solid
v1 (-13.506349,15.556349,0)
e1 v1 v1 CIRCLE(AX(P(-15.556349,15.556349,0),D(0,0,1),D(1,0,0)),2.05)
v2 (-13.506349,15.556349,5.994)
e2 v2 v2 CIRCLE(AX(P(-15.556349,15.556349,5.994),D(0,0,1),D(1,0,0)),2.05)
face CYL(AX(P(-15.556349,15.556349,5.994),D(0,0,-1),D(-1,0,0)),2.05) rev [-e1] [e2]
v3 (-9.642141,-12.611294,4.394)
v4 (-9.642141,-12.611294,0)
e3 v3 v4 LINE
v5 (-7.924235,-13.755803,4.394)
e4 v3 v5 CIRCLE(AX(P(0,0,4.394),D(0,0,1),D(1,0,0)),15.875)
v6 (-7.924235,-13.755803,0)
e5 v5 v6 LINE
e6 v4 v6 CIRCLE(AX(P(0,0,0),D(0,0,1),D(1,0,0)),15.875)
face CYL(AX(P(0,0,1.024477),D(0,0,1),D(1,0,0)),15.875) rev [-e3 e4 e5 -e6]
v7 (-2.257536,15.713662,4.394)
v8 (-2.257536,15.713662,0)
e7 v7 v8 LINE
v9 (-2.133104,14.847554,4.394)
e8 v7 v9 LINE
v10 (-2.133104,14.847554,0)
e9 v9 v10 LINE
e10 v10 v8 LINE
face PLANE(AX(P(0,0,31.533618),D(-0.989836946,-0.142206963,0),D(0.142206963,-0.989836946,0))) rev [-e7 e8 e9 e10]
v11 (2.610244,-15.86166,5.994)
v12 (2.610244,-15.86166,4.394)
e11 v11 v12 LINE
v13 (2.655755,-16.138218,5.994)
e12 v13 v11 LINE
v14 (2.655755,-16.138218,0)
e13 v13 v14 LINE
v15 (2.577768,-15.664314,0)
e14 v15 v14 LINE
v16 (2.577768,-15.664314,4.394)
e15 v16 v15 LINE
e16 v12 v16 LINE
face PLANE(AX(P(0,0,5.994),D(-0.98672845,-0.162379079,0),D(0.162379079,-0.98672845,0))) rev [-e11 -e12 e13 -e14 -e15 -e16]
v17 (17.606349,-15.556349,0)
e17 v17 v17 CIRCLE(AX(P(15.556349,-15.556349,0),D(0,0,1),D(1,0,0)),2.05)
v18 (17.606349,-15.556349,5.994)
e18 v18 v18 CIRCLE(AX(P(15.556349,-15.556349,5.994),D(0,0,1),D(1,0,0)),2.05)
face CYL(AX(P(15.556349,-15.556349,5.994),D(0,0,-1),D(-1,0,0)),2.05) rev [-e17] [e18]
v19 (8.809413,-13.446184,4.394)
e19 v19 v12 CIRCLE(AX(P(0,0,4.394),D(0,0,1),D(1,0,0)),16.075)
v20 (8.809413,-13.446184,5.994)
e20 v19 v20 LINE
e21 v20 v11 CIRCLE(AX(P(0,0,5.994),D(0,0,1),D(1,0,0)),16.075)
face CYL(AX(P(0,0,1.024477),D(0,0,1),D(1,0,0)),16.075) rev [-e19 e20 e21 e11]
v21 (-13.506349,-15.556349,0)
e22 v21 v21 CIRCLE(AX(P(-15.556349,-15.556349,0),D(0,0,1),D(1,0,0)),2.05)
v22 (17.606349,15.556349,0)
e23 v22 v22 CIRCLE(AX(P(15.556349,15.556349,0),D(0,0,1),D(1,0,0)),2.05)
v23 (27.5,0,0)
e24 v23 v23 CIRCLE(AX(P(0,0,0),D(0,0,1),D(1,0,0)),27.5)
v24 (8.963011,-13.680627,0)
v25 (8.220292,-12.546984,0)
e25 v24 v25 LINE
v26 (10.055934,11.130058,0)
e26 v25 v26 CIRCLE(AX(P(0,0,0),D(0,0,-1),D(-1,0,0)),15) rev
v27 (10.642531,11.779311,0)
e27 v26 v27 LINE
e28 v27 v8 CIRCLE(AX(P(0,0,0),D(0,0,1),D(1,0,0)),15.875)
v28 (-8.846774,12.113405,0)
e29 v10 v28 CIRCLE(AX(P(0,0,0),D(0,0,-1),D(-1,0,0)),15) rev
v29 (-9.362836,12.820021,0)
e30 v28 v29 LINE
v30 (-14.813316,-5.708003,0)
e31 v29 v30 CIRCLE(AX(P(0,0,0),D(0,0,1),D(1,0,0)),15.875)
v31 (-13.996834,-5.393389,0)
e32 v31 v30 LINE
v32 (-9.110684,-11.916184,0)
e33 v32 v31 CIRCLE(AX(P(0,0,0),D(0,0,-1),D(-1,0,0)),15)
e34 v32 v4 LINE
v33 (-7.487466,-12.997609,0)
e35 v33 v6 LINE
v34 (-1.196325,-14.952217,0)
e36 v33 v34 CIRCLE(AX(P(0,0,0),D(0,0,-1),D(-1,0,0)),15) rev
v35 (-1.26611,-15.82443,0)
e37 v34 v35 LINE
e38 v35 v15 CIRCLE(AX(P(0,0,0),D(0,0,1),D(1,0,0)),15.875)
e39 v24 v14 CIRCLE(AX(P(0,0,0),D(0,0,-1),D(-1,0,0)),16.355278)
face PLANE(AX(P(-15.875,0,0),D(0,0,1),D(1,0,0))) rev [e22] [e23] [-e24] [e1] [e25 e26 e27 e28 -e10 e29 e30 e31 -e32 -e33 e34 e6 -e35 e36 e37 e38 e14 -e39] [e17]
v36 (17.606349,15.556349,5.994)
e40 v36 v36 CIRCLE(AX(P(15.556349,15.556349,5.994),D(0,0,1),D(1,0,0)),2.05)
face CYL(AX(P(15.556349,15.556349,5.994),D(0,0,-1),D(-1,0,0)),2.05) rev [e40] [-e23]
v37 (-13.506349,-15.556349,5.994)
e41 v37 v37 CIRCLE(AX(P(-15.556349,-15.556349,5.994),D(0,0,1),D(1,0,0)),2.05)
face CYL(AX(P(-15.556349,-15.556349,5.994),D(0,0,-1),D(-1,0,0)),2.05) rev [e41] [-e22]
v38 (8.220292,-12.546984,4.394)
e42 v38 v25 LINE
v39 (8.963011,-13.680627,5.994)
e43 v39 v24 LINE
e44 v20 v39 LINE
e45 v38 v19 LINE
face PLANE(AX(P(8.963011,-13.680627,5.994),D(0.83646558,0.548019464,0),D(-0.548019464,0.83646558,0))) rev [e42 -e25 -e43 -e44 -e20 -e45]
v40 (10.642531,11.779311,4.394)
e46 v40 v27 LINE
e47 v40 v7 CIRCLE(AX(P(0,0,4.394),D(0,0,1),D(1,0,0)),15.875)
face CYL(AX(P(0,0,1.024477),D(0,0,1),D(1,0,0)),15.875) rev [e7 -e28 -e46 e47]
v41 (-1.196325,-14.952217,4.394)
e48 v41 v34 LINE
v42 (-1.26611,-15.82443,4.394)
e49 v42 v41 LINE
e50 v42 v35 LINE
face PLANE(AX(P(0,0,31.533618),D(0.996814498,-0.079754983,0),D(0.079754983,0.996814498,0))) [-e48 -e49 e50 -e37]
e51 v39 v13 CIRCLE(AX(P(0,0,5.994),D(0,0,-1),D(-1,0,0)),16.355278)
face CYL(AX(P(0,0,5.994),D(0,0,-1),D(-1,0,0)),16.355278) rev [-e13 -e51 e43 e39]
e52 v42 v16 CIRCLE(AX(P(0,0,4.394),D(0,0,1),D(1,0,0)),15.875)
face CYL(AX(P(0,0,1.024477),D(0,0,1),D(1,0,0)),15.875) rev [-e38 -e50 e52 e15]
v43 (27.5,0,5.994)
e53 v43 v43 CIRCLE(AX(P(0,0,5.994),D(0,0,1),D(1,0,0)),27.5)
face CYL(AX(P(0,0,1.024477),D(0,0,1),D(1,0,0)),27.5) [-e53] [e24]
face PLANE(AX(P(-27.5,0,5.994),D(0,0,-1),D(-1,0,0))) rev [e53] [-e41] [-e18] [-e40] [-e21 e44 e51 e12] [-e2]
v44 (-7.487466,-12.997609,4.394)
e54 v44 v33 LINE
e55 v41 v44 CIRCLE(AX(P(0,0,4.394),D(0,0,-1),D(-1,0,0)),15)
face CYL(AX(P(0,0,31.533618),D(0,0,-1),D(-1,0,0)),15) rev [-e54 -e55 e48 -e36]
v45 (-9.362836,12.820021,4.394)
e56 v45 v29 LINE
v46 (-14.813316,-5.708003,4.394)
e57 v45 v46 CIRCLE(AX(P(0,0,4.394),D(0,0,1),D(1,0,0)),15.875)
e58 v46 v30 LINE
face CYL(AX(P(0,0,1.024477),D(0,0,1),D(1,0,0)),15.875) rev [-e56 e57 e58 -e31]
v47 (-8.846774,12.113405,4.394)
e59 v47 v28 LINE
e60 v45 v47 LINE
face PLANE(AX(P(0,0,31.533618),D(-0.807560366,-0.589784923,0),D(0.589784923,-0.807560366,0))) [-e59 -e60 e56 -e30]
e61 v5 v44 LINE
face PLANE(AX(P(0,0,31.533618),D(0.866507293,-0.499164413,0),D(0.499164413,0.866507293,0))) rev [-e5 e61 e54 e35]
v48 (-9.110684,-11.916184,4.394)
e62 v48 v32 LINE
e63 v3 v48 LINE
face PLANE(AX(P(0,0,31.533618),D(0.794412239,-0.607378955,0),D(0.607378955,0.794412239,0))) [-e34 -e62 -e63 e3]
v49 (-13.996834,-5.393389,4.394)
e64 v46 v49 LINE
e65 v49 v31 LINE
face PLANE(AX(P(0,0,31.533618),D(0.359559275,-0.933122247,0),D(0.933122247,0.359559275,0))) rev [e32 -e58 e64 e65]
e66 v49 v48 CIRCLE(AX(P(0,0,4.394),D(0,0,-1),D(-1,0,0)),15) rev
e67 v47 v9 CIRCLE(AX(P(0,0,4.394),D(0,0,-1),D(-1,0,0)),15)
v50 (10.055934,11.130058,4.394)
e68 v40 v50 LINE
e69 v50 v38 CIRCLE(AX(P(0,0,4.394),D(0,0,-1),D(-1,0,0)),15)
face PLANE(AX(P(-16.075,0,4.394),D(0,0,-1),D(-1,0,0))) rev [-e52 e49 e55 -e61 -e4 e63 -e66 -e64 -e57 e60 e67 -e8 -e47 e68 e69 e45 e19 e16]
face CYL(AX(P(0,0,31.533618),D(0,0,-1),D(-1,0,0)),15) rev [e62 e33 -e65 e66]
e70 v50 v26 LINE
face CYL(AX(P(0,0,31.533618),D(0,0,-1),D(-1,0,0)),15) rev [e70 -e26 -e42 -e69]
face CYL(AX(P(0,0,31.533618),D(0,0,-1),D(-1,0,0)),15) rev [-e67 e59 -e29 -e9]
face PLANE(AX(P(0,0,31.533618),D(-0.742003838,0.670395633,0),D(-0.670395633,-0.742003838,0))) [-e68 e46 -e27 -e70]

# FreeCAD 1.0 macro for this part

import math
import FreeCAD as App
import Part
import Sketcher
Q = App.Units.Quantity

doc = App.newDocument("Part")
params = doc.addObject("Spreadsheet::Sheet", "Params")
for row, (alias, value) in enumerate([
    ("sketch1_width", "0.2 mm"),
    ("sketch1_height", "1.6 mm"),
    ("revolution_angle", "360 deg"),
    ("sketch2_diameter", "4.1 mm"),
    ("sketch3_radius", "15 mm"),
    ("pad1_length", "4.394 mm"),
], start=1):
    params.set(f"A{row}", alias)
    params.set(f"B{row}", "=" + value)
    params.setAlias(f"B{row}", alias)

body = doc.addObject("PartDesign::Body", "Body")

# Sketch on XZ plane
sketch1 = body.newObject("Sketcher::SketchObject", "Sketch")
sketch1.AttachmentSupport = (doc.getObject("XZ_Plane"), [""])
sketch1.MapMode = "FlatFace"
sketch1.addGeometry([
    Part.LineSegment(App.Vector(-15.88, 0, 0), App.Vector(-27.5, 0, 0)),  # 0
    Part.LineSegment(App.Vector(-27.5, 0, 0), App.Vector(-27.5, 5.99, 0)),  # 1
    Part.LineSegment(App.Vector(-27.5, 5.99, 0), App.Vector(-16.07, 5.99, 0)),  # 2
    Part.LineSegment(App.Vector(-16.07, 5.99, 0), App.Vector(-16.07, 4.39, 0)),  # 3
    Part.LineSegment(App.Vector(-16.07, 4.39, 0), App.Vector(-15.88, 4.39, 0)),  # 4
    Part.LineSegment(App.Vector(-15.88, 4.39, 0), App.Vector(-15.88, 0, 0)),  # 5
], False)
sketch1.addConstraint([
    Sketcher.Constraint("Coincident", 0, 2, 1, 1),
    Sketcher.Constraint("Coincident", 1, 2, 2, 1),
    Sketcher.Constraint("Coincident", 2, 2, 3, 1),
    Sketcher.Constraint("Coincident", 3, 2, 4, 1),
    Sketcher.Constraint("Coincident", 4, 2, 5, 1),
    Sketcher.Constraint("Coincident", 5, 2, 0, 1),
    Sketcher.Constraint("Horizontal", 0),
    Sketcher.Constraint("Vertical", 1),
    Sketcher.Constraint("Horizontal", 2),
    Sketcher.Constraint("Vertical", 3),
    Sketcher.Constraint("Horizontal", 4),
    Sketcher.Constraint("Vertical", 5),
    Sketcher.Constraint("PointOnObject", 0, 2, -1),
    Sketcher.Constraint("DistanceX", 4, 1, 4, 2, Q("0.2 mm")),
    Sketcher.Constraint("DistanceY", 3, 2, 3, 1, Q("1.6 mm")),
    Sketcher.Constraint("DistanceX", 0, 2, -1, 1, Q("27.5 mm")),
    Sketcher.Constraint("DistanceX", 0, 2, 0, 1, Q("11.625 mm")),
    Sketcher.Constraint("DistanceY", 1, 1, 1, 2, Q("5.994 mm")),
])
sketch1.setExpression("Constraints[13]", "Params.sketch1_width")
sketch1.setExpression("Constraints[14]", "Params.sketch1_height")
revolution = body.newObject("PartDesign::Revolution", "Revolution")
revolution.Profile = sketch1
revolution.ReferenceAxis = (sketch1, ["V_Axis"])
revolution.setExpression("Angle", "Params.revolution_angle")

# Sketch on XY plane
sketch2 = body.newObject("Sketcher::SketchObject", "Sketch001")
sketch2.AttachmentSupport = (doc.getObject("XY_Plane"), [""])
sketch2.MapMode = "FlatFace"
sketch2.addGeometry([
    Part.Circle(App.Vector(-15.6, 15.6, 0), App.Vector(0, 0, 1), 2),
    Part.Circle(App.Vector(15.6, 15.6, 0), App.Vector(0, 0, 1), 2),
    Part.Circle(App.Vector(15.6, -15.6, 0), App.Vector(0, 0, 1), 2),
    Part.Circle(App.Vector(-15.6, -15.6, 0), App.Vector(0, 0, 1), 2),
], False)
sketch2.addConstraint([
    Sketcher.Constraint("Equal", 0, 1),
    Sketcher.Constraint("Equal", 1, 2),
    Sketcher.Constraint("Equal", 2, 3),
    Sketcher.Constraint("Symmetric", 0, 3, 2, 3, -1, 1),
    Sketcher.Constraint("Symmetric", 1, 3, 3, 3, -1, 1),
    Sketcher.Constraint("Symmetric", 0, 3, 1, 3, -2),
    Sketcher.Constraint("Diameter", 0, Q("4.1 mm")),
    Sketcher.Constraint("DistanceX", 0, 3, 1, 3, Q("31.112698 mm")),
    Sketcher.Constraint("DistanceY", 2, 3, 1, 3, Q("31.112698 mm")),
])
sketch2.setExpression("Constraints[6]", "Params.sketch2_diameter")
pocket1 = body.newObject("PartDesign::Pocket", "Pocket")
pocket1.Profile = sketch2
pocket1.Type = "ThroughAll"
pocket1.Reversed = True

# Sketch on XY plane
sketch3 = body.newObject("Sketcher::SketchObject", "Sketch002")
sketch3.AttachmentSupport = (doc.getObject("XY_Plane"), [""])
sketch3.MapMode = "FlatFace"
sketch3.addGeometry([
    Part.ArcOfCircle(Part.Circle(App.Vector(0, 0, 0), App.Vector(0, 0, 1), 15.9), math.radians(-61), math.radians(48)),  # 0
    Part.LineSegment(App.Vector(7.6, -13.9, 0), App.Vector(7.2, -13.2, 0)),  # 1
    Part.ArcOfCircle(Part.Circle(App.Vector(0, 0, 0), App.Vector(0, 0, 1), 15), math.radians(-61), math.radians(48)),  # 2
    Part.LineSegment(App.Vector(10.1, 11.1, 0), App.Vector(10.6, 11.8, 0)),  # 3
    Part.LineSegment(App.Vector(-7.9, -13.8, 0), App.Vector(-7.5, -13, 0)),  # 4
    Part.ArcOfCircle(Part.Circle(App.Vector(0, 0, 0), App.Vector(0, 0, 1), 15), math.radians(-120), math.radians(-95)),  # 5
    Part.LineSegment(App.Vector(-1.2, -15, 0), App.Vector(-1.3, -15.8, 0)),  # 6
    Part.ArcOfCircle(Part.Circle(App.Vector(0, 0, 0), App.Vector(0, 0, 1), 15.9), math.radians(-120), math.radians(-95)),  # 7
    Part.LineSegment(App.Vector(-9.1, -11.9, 0), App.Vector(-9.6, -12.6, 0)),  # 8
    Part.ArcOfCircle(Part.Circle(App.Vector(0, 0, 0), App.Vector(0, 0, 1), 15.9), math.radians(-159), math.radians(-127)),  # 9
    Part.LineSegment(App.Vector(-14.8, -5.7, 0), App.Vector(-14, -5.4, 0)),  # 10
    Part.ArcOfCircle(Part.Circle(App.Vector(0, 0, 0), App.Vector(0, 0, 1), 15), math.radians(-159), math.radians(-127)),  # 11
    Part.ArcOfCircle(Part.Circle(App.Vector(0, 0, 0), App.Vector(0, 0, 1), 15.9), math.radians(98), math.radians(126)),  # 12
    Part.LineSegment(App.Vector(-2.3, 15.7, 0), App.Vector(-2.1, 14.8, 0)),  # 13
    Part.ArcOfCircle(Part.Circle(App.Vector(0, 0, 0), App.Vector(0, 0, 1), 15), math.radians(98), math.radians(126)),  # 14
    Part.LineSegment(App.Vector(-8.8, 12.1, 0), App.Vector(-9.4, 12.8, 0)),  # 15
], False)
sketch3.addConstraint([
    Sketcher.Constraint("Coincident", 0, 1, 1, 1),
    Sketcher.Constraint("Coincident", 1, 2, 2, 1),
    Sketcher.Constraint("Coincident", 2, 2, 3, 1),
    Sketcher.Constraint("Coincident", 3, 2, 0, 2),
    Sketcher.Constraint("Coincident", 4, 2, 5, 1),
    Sketcher.Constraint("Coincident", 5, 2, 6, 1),
    Sketcher.Constraint("Coincident", 6, 2, 7, 2),
    Sketcher.Constraint("Coincident", 7, 1, 4, 1),
    Sketcher.Constraint("Coincident", 8, 2, 9, 2),
    Sketcher.Constraint("Coincident", 9, 1, 10, 1),
    Sketcher.Constraint("Coincident", 10, 2, 11, 1),
    Sketcher.Constraint("Coincident", 11, 2, 8, 1),
    Sketcher.Constraint("Coincident", 12, 1, 13, 1),
    Sketcher.Constraint("Coincident", 13, 2, 14, 1),
    Sketcher.Constraint("Coincident", 14, 2, 15, 1),
    Sketcher.Constraint("Coincident", 15, 2, 12, 2),
    Sketcher.Constraint("Coincident", 0, 3, -1, 1),
    Sketcher.Constraint("Coincident", 2, 3, -1, 1),
    Sketcher.Constraint("Coincident", 5, 3, -1, 1),
    Sketcher.Constraint("Coincident", 7, 3, -1, 1),
    Sketcher.Constraint("Coincident", 9, 3, -1, 1),
    Sketcher.Constraint("Coincident", 11, 3, -1, 1),
    Sketcher.Constraint("Coincident", 12, 3, -1, 1),
    Sketcher.Constraint("Coincident", 14, 3, -1, 1),
    Sketcher.Constraint("Equal", 2, 5),
    Sketcher.Constraint("Equal", 0, 7),
    Sketcher.Constraint("Equal", 7, 9),
    Sketcher.Constraint("Equal", 5, 11),
    Sketcher.Constraint("Equal", 9, 12),
    Sketcher.Constraint("Equal", 11, 14),
    Sketcher.Constraint("Radius", 2, Q("15 mm")),
    Sketcher.Constraint("Radius", 0, Q("15.875 mm")),
    Sketcher.Constraint("DistanceX", -1, 1, 0, 1, Q("7.608598 mm")),
    Sketcher.Constraint("DistanceY", 5, 2, 1, 2, Q("1.787301 mm")),
    Sketcher.Constraint("DistanceY", 7, 1, 9, 1, Q("8.0478 mm")),
    Sketcher.Constraint("DistanceX", 10, 2, 7, 1, Q("6.072599 mm")),
    Sketcher.Constraint("DistanceX", 15, 2, 12, 1, Q("7.1053 mm")),
    Sketcher.Constraint("DistanceX", -1, 1, 3, 2, Q("10.642531 mm")),
    Sketcher.Constraint("DistanceY", 4, 2, -1, 1, Q("12.997609 mm")),
    Sketcher.Constraint("DistanceX", 6, 2, -1, 1, Q("1.26611 mm")),
    Sketcher.Constraint("DistanceX", 8, 2, -1, 1, Q("9.642141 mm")),
    Sketcher.Constraint("DistanceY", 10, 2, -1, 1, Q("5.393389 mm")),
    Sketcher.Constraint("DistanceY", -1, 1, 12, 1, Q("15.713662 mm")),
    Sketcher.Constraint("DistanceX", 1, 2, 0, 1, Q("0.419372 mm")),
    Sketcher.Constraint("DistanceY", 8, 2, 11, 2, Q("0.695111 mm")),
    Sketcher.Constraint("DistanceX", 12, 1, 2, 2, Q("12.31347 mm")),
    Sketcher.Constraint("DistanceX", 12, 1, 13, 2, Q("0.124431 mm")),
    Sketcher.Constraint("DistanceX", 14, 2, 13, 2, Q("6.713669 mm")),
])
sketch3.setExpression("Constraints[30]", "Params.sketch3_radius")
pad1 = body.newObject("PartDesign::Pad", "Pad")
pad1.Profile = sketch3
pad1.setExpression("Length", "Params.pad1_length")

# Sketch on XY plane
sketch4 = body.newObject("Sketcher::SketchObject", "Sketch003")
sketch4.AttachmentSupport = (doc.getObject("XY_Plane"), [""])
sketch4.MapMode = "FlatFace"
sketch4.addGeometry([
    Part.LineSegment(App.Vector(0, 0, 0), App.Vector(9, -14, 0)),
    Part.ArcOfCircle(Part.Circle(App.Vector(0, 0, 0), App.Vector(0, 0, 1), 16), math.radians(-81), math.radians(-57)),
    Part.LineSegment(App.Vector(3, -16, 0), App.Vector(0, 0, 0)),
], False)
sketch4.addConstraint([
    Sketcher.Constraint("Coincident", 0, 2, 1, 2),
    Sketcher.Constraint("Coincident", 1, 1, 2, 1),
    Sketcher.Constraint("Coincident", 2, 2, 0, 1),
    Sketcher.Constraint("Coincident", 1, 3, -1, 1),
    Sketcher.Constraint("Coincident", 2, 2, -1, 1),
    Sketcher.Constraint("Radius", 1, Q("16.355278 mm")),
    Sketcher.Constraint("DistanceX", -1, 1, 0, 2, Q("8.963011 mm")),
    Sketcher.Constraint("DistanceY", 1, 1, -1, 1, Q("16.138218 mm")),
])
pocket2 = body.newObject("PartDesign::Pocket", "Pocket001")
pocket2.Profile = sketch4
pocket2.Type = "ThroughAll"
pocket2.Midplane = True

doc.recompute()
